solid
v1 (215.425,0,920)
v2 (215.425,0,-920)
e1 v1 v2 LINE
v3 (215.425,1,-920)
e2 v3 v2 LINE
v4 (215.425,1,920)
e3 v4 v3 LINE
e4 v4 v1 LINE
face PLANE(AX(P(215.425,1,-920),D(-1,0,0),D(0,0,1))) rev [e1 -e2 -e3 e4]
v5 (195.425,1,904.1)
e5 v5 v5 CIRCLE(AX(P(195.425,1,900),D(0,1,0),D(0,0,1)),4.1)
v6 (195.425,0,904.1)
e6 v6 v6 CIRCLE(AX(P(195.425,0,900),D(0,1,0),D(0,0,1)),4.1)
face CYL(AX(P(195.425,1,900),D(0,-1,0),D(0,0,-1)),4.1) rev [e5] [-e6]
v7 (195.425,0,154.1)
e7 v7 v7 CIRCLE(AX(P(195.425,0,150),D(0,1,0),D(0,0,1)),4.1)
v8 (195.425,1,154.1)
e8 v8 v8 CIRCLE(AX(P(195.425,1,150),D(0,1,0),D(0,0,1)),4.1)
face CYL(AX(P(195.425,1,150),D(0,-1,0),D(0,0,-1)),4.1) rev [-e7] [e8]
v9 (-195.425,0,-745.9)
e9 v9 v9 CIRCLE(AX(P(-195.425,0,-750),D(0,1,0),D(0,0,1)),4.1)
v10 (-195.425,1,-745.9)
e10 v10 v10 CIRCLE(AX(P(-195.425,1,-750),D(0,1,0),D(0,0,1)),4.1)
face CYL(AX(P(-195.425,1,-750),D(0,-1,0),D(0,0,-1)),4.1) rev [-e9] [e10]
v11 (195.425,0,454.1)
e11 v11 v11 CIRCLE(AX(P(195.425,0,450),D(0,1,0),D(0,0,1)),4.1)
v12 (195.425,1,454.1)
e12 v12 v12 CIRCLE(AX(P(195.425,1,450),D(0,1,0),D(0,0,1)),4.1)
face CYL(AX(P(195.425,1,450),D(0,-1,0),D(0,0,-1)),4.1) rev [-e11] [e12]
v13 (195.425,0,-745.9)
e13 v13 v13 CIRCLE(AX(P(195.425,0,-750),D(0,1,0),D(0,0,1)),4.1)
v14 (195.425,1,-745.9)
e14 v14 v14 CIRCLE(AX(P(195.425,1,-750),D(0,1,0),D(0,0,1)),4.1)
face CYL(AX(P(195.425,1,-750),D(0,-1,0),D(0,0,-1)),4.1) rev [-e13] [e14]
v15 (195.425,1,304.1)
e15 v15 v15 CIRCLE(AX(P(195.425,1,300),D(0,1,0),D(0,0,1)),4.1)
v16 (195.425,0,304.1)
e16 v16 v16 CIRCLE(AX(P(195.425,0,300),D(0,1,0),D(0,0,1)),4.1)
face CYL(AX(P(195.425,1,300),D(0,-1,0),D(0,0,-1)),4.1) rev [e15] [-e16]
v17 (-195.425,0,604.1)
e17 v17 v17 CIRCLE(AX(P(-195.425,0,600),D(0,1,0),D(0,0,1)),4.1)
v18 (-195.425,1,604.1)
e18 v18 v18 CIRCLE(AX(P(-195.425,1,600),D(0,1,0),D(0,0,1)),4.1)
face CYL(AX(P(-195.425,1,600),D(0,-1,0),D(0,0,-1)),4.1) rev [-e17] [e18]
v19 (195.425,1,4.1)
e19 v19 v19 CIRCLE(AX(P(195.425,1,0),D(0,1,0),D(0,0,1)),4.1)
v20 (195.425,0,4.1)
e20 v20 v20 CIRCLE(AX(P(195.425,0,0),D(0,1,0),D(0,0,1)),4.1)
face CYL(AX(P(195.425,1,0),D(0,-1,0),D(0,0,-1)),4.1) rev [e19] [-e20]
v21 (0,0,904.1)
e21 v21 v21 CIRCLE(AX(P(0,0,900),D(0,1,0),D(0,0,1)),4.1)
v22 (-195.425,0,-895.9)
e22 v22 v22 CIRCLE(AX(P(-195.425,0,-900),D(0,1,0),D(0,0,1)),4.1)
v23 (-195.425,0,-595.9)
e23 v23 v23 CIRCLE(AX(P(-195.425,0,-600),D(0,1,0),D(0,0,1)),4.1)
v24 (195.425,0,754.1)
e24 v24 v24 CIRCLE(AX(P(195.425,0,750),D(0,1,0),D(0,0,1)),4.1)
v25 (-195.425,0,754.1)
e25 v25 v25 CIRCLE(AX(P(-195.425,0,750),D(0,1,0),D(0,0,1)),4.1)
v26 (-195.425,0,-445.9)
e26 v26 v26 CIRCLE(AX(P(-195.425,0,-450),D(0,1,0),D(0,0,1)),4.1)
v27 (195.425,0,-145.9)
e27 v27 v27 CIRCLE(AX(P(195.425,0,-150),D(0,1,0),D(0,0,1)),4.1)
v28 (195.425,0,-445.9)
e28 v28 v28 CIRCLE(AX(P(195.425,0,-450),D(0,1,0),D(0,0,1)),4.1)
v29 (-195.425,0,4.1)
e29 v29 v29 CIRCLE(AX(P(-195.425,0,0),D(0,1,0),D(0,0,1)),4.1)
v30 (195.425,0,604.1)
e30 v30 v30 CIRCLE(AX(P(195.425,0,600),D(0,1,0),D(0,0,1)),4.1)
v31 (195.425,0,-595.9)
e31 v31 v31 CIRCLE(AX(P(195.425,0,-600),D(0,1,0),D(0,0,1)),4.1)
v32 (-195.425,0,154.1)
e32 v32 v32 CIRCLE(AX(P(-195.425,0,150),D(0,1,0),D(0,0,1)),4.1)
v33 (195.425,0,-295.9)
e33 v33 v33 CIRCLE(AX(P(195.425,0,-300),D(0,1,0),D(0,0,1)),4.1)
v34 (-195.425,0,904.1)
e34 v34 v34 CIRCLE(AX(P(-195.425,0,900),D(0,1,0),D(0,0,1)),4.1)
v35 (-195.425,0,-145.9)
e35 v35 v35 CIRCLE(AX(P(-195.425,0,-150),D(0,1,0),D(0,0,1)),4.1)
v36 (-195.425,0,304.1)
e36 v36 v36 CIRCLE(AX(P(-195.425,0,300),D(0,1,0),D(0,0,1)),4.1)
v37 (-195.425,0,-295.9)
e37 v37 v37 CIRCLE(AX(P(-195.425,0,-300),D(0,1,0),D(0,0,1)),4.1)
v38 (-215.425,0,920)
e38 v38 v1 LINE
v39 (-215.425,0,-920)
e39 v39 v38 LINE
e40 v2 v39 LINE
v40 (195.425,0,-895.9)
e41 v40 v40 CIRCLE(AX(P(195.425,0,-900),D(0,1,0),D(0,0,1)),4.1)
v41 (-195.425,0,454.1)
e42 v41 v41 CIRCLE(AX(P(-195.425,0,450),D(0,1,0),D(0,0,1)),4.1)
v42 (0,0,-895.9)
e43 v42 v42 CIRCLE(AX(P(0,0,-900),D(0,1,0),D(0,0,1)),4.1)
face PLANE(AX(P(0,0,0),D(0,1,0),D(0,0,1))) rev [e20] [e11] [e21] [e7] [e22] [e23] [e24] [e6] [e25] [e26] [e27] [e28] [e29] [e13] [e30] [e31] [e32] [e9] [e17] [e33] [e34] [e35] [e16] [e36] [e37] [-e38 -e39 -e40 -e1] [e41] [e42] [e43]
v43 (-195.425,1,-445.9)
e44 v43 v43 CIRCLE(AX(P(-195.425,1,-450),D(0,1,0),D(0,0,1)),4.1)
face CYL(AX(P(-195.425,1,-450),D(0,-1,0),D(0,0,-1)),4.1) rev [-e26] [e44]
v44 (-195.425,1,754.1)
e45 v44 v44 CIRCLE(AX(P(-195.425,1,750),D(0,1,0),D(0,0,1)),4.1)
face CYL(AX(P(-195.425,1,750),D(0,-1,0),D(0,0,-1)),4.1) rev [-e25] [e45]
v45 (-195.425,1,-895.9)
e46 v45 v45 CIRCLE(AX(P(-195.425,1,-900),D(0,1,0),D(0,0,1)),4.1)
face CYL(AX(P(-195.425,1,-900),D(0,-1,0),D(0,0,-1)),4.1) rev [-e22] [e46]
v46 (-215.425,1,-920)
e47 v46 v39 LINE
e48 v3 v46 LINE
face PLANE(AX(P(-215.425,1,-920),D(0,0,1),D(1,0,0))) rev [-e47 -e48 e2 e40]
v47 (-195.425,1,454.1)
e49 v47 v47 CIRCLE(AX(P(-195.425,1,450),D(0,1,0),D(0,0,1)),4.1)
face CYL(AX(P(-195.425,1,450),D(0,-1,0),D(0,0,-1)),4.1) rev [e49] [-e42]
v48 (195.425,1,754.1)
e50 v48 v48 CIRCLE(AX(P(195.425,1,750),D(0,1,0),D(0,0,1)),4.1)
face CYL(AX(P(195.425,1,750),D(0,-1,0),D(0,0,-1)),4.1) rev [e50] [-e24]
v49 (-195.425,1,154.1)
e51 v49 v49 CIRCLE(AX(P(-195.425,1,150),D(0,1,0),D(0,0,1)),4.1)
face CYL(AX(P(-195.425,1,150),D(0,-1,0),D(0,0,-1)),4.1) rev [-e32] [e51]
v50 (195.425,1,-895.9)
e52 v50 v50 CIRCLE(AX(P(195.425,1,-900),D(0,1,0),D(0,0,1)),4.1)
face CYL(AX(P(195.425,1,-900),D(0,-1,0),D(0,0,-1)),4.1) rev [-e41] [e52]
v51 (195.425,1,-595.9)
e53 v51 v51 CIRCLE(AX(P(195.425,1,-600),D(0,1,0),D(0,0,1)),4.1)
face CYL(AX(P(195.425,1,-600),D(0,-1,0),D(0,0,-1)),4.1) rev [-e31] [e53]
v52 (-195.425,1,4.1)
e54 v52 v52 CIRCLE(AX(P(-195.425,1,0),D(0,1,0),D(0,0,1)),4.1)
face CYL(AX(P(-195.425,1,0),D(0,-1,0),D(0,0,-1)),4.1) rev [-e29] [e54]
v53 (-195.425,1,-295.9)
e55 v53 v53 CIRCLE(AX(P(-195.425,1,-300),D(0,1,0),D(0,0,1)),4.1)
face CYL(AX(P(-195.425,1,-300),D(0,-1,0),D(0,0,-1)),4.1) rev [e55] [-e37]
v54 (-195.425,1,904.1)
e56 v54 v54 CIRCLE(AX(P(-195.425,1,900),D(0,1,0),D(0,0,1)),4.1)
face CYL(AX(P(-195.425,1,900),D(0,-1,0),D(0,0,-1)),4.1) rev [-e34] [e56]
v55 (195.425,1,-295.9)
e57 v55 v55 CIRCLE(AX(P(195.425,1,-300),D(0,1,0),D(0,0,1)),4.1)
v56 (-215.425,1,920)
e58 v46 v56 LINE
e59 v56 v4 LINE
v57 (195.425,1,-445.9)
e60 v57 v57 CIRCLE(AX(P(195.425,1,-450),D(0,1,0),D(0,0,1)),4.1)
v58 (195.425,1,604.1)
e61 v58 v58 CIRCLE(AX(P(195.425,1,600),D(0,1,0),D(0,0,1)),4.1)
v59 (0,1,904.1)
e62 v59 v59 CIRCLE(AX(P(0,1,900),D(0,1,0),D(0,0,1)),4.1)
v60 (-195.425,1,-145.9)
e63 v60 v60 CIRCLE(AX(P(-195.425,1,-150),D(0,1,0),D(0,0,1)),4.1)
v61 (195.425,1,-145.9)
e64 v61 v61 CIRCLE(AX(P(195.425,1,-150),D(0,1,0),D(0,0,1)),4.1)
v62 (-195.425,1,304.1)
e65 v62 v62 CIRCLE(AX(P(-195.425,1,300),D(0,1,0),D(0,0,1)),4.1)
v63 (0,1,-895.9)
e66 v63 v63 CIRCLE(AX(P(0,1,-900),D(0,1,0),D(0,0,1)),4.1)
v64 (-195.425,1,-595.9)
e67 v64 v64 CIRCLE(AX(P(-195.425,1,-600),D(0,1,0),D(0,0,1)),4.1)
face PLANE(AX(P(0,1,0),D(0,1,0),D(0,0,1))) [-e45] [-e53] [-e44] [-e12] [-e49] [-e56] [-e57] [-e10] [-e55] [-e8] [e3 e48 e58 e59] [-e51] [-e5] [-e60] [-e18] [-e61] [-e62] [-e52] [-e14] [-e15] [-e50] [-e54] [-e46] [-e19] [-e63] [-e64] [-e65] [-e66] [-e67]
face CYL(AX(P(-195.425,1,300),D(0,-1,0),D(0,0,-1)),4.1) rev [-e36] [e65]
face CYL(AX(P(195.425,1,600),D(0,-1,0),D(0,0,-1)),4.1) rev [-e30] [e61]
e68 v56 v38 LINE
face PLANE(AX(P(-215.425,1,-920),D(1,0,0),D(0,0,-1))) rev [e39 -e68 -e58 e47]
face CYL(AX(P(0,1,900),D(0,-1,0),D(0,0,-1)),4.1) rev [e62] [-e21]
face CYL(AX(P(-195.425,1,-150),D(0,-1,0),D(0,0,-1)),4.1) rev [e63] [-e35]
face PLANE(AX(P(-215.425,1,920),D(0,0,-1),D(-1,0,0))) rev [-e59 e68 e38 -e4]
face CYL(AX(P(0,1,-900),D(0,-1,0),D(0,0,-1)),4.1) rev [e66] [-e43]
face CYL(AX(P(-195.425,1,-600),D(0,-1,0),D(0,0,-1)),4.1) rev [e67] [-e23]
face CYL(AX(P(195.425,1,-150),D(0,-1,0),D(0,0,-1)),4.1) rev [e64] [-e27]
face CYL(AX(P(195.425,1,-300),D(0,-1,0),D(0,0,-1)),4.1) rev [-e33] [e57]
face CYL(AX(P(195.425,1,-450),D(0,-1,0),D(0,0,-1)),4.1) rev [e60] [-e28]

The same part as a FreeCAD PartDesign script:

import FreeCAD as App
import Part
import Sketcher
from FreeCAD import Vector

doc = App.newDocument("Part")
body = doc.addObject("PartDesign::Body", "Body")

# Sketch on XZ plane
sketch1 = body.newObject("Sketcher::SketchObject", "Sketch")
sketch1.AttachmentSupport = (doc.getObject("XZ_Plane"), [""])
sketch1.MapMode = "FlatFace"
sketch1.addGeometry(Part.LineSegment(Vector(-215.4, -920, 0), Vector(-215.4, 920, 0)), False)
sketch1.addGeometry(Part.LineSegment(Vector(-215.4, 920, 0), Vector(215.4, 920, 0)), False)
sketch1.addGeometry(Part.LineSegment(Vector(215.4, 920, 0), Vector(215.4, -920, 0)), False)
sketch1.addGeometry(Part.LineSegment(Vector(215.4, -920, 0), Vector(-215.4, -920, 0)), False)
sketch1.addGeometry(Part.Circle(Vector(-195.4, 900, 0), Vector(0, 0, 1), 4.1), False)
sketch1.addGeometry(Part.Circle(Vector(-195.4, 750, 0), Vector(0, 0, 1), 4.1), False)
sketch1.addGeometry(Part.Circle(Vector(-195.4, 600, 0), Vector(0, 0, 1), 4.1), False)
sketch1.addGeometry(Part.Circle(Vector(-195.4, 450, 0), Vector(0, 0, 1), 4.1), False)
sketch1.addGeometry(Part.Circle(Vector(-195.4, 300, 0), Vector(0, 0, 1), 4.1), False)
sketch1.addGeometry(Part.Circle(Vector(-195.4, 150, 0), Vector(0, 0, 1), 4.1), False)
sketch1.addGeometry(Part.Circle(Vector(-195.4, 0, 0), Vector(0, 0, 1), 4.1), False)
sketch1.addGeometry(Part.Circle(Vector(0, 900, 0), Vector(0, 0, 1), 4.1), False)
sketch1.addGeometry(Part.Circle(Vector(195.4, 900, 0), Vector(0, 0, 1), 4.1), False)
sketch1.addGeometry(Part.Circle(Vector(195.4, 750, 0), Vector(0, 0, 1), 4.1), False)
sketch1.addGeometry(Part.Circle(Vector(195.4, 600, 0), Vector(0, 0, 1), 4.1), False)
sketch1.addGeometry(Part.Circle(Vector(195.4, 450, 0), Vector(0, 0, 1), 4.1), False)
sketch1.addGeometry(Part.Circle(Vector(195.4, 300, 0), Vector(0, 0, 1), 4.1), False)
sketch1.addGeometry(Part.Circle(Vector(195.4, 150, 0), Vector(0, 0, 1), 4.1), False)
sketch1.addGeometry(Part.Circle(Vector(195.4, 0, 0), Vector(0, 0, 1), 4.1), False)
sketch1.addGeometry(Part.Circle(Vector(-195.4, -150, 0), Vector(0, 0, 1), 4.1), False)
sketch1.addGeometry(Part.Circle(Vector(-195.4, -300, 0), Vector(0, 0, 1), 4.1), False)
sketch1.addGeometry(Part.Circle(Vector(-195.4, -450, 0), Vector(0, 0, 1), 4.1), False)
sketch1.addGeometry(Part.Circle(Vector(-195.4, -600, 0), Vector(0, 0, 1), 4.1), False)
sketch1.addGeometry(Part.Circle(Vector(-195.4, -750, 0), Vector(0, 0, 1), 4.1), False)
sketch1.addGeometry(Part.Circle(Vector(-195.4, -900, 0), Vector(0, 0, 1), 4.1), False)
sketch1.addGeometry(Part.Circle(Vector(195.4, -150, 0), Vector(0, 0, 1), 4.1), False)
sketch1.addGeometry(Part.Circle(Vector(195.4, -300, 0), Vector(0, 0, 1), 4.1), False)
sketch1.addGeometry(Part.Circle(Vector(195.4, -450, 0), Vector(0, 0, 1), 4.1), False)
sketch1.addGeometry(Part.Circle(Vector(0, -900, 0), Vector(0, 0, 1), 4.1), False)
sketch1.addGeometry(Part.Circle(Vector(195.4, -600, 0), Vector(0, 0, 1), 4.1), False)
sketch1.addGeometry(Part.Circle(Vector(195.4, -750, 0), Vector(0, 0, 1), 4.1), False)
sketch1.addGeometry(Part.Circle(Vector(195.4, -900, 0), Vector(0, 0, 1), 4.1), False)
sketch1.addConstraint(Sketcher.Constraint("Coincident", 0, 2, 1, 1))
sketch1.addConstraint(Sketcher.Constraint("Coincident", 1, 2, 2, 1))
sketch1.addConstraint(Sketcher.Constraint("Coincident", 2, 2, 3, 1))
sketch1.addConstraint(Sketcher.Constraint("Coincident", 3, 2, 0, 1))
sketch1.addConstraint(Sketcher.Constraint("Vertical", 0))
sketch1.addConstraint(Sketcher.Constraint("Horizontal", 1))
sketch1.addConstraint(Sketcher.Constraint("Vertical", 2))
sketch1.addConstraint(Sketcher.Constraint("Horizontal", 3))
sketch1.addConstraint(Sketcher.Constraint("Equal", 4, 5))
sketch1.addConstraint(Sketcher.Constraint("Equal", 5, 6))
sketch1.addConstraint(Sketcher.Constraint("Equal", 6, 7))
sketch1.addConstraint(Sketcher.Constraint("Equal", 7, 8))
sketch1.addConstraint(Sketcher.Constraint("Equal", 8, 9))
sketch1.addConstraint(Sketcher.Constraint("Equal", 9, 10))
sketch1.addConstraint(Sketcher.Constraint("Equal", 10, 11))
sketch1.addConstraint(Sketcher.Constraint("Equal", 11, 12))
sketch1.addConstraint(Sketcher.Constraint("Equal", 12, 13))
sketch1.addConstraint(Sketcher.Constraint("Equal", 13, 14))
sketch1.addConstraint(Sketcher.Constraint("Equal", 14, 15))
sketch1.addConstraint(Sketcher.Constraint("Equal", 15, 16))
sketch1.addConstraint(Sketcher.Constraint("Equal", 16, 17))
sketch1.addConstraint(Sketcher.Constraint("Equal", 17, 18))
sketch1.addConstraint(Sketcher.Constraint("Equal", 18, 19))
sketch1.addConstraint(Sketcher.Constraint("Equal", 19, 20))
sketch1.addConstraint(Sketcher.Constraint("Equal", 20, 21))
sketch1.addConstraint(Sketcher.Constraint("Equal", 21, 22))
sketch1.addConstraint(Sketcher.Constraint("Equal", 22, 23))
sketch1.addConstraint(Sketcher.Constraint("Equal", 23, 24))
sketch1.addConstraint(Sketcher.Constraint("Equal", 24, 25))
sketch1.addConstraint(Sketcher.Constraint("Equal", 25, 26))
sketch1.addConstraint(Sketcher.Constraint("Equal", 26, 27))
sketch1.addConstraint(Sketcher.Constraint("Equal", 27, 28))
sketch1.addConstraint(Sketcher.Constraint("Equal", 28, 29))
sketch1.addConstraint(Sketcher.Constraint("Equal", 29, 30))
sketch1.addConstraint(Sketcher.Constraint("Equal", 30, 31))
sketch1.addConstraint(Sketcher.Constraint("Symmetric", 10, 3, 18, 3, -1, 1))
sketch1.addConstraint(Sketcher.Constraint("Symmetric", 17, 3, 19, 3, -1, 1))
sketch1.addConstraint(Sketcher.Constraint("Symmetric", 16, 3, 20, 3, -1, 1))
sketch1.addConstraint(Sketcher.Constraint("Symmetric", 15, 3, 21, 3, -1, 1))
sketch1.addConstraint(Sketcher.Constraint("Symmetric", 14, 3, 22, 3, -1, 1))
sketch1.addConstraint(Sketcher.Constraint("Symmetric", 13, 3, 23, 3, -1, 1))
sketch1.addConstraint(Sketcher.Constraint("Symmetric", 12, 3, 24, 3, -1, 1))
sketch1.addConstraint(Sketcher.Constraint("Symmetric", 9, 3, 25, 3, -1, 1))
sketch1.addConstraint(Sketcher.Constraint("Symmetric", 8, 3, 26, 3, -1, 1))
sketch1.addConstraint(Sketcher.Constraint("Symmetric", 7, 3, 27, 3, -1, 1))
sketch1.addConstraint(Sketcher.Constraint("Symmetric", 11, 3, 28, 3, -1, 1))
sketch1.addConstraint(Sketcher.Constraint("Symmetric", 6, 3, 29, 3, -1, 1))
sketch1.addConstraint(Sketcher.Constraint("Symmetric", 5, 3, 30, 3, -1, 1))
sketch1.addConstraint(Sketcher.Constraint("Symmetric", 4, 3, 31, 3, -1, 1))
sketch1.addConstraint(Sketcher.Constraint("Symmetric", 0, 2, 2, 2, -1, 1))
sketch1.addConstraint(Sketcher.Constraint("Symmetric", 4, 3, 12, 3, -2))
sketch1.addConstraint(Sketcher.Constraint("Symmetric", 5, 3, 13, 3, -2))
sketch1.addConstraint(Sketcher.Constraint("Symmetric", 6, 3, 14, 3, -2))
sketch1.addConstraint(Sketcher.Constraint("Symmetric", 7, 3, 15, 3, -2))
sketch1.addConstraint(Sketcher.Constraint("Symmetric", 8, 3, 16, 3, -2))
sketch1.addConstraint(Sketcher.Constraint("Symmetric", 9, 3, 17, 3, -2))
sketch1.addConstraint(Sketcher.Constraint("PointOnObject", 10, 3, -1))
sketch1.addConstraint(Sketcher.Constraint("PointOnObject", 11, 3, -2))
sketch1.addConstraint(Sketcher.Constraint("Horizontal", 4, 3, 11, 3))
sketch1.addConstraint(Sketcher.Constraint("Vertical", 4, 3, 5, 3))
sketch1.addConstraint(Sketcher.Constraint("Vertical", 5, 3, 6, 3))
sketch1.addConstraint(Sketcher.Constraint("Vertical", 6, 3, 7, 3))
sketch1.addConstraint(Sketcher.Constraint("Vertical", 7, 3, 8, 3))
sketch1.addConstraint(Sketcher.Constraint("Vertical", 8, 3, 9, 3))
sketch1.addConstraint(Sketcher.Constraint("Vertical", 9, 3, 10, 3))
sketch1.addConstraint(Sketcher.Constraint("Diameter", 4, 8.2))
sketch1.addConstraint(Sketcher.Constraint("DistanceY", 0, 1, 0, 2, 1840.0))
sketch1.addConstraint(Sketcher.Constraint("DistanceY", -1, 1, 4, 3, 900.0))
sketch1.addConstraint(Sketcher.Constraint("DistanceY", -1, 1, 5, 3, 750.0))
sketch1.addConstraint(Sketcher.Constraint("DistanceY", -1, 1, 6, 3, 600.0))
sketch1.addConstraint(Sketcher.Constraint("DistanceY", -1, 1, 7, 3, 450.0))
sketch1.addConstraint(Sketcher.Constraint("DistanceY", -1, 1, 8, 3, 300.0))
sketch1.addConstraint(Sketcher.Constraint("DistanceY", -1, 1, 9, 3, 150.0))
sketch1.addConstraint(Sketcher.Constraint("DistanceX", 0, 2, 4, 3, 20.0))
sketch1.addConstraint(Sketcher.Constraint("DistanceX", 1, 1, 1, 2, 430.85))
pad1 = body.newObject("PartDesign::Pad", "Pad")
pad1.Profile = sketch1
pad1.Length = 1
pad1.Reversed = True

doc.recompute()
